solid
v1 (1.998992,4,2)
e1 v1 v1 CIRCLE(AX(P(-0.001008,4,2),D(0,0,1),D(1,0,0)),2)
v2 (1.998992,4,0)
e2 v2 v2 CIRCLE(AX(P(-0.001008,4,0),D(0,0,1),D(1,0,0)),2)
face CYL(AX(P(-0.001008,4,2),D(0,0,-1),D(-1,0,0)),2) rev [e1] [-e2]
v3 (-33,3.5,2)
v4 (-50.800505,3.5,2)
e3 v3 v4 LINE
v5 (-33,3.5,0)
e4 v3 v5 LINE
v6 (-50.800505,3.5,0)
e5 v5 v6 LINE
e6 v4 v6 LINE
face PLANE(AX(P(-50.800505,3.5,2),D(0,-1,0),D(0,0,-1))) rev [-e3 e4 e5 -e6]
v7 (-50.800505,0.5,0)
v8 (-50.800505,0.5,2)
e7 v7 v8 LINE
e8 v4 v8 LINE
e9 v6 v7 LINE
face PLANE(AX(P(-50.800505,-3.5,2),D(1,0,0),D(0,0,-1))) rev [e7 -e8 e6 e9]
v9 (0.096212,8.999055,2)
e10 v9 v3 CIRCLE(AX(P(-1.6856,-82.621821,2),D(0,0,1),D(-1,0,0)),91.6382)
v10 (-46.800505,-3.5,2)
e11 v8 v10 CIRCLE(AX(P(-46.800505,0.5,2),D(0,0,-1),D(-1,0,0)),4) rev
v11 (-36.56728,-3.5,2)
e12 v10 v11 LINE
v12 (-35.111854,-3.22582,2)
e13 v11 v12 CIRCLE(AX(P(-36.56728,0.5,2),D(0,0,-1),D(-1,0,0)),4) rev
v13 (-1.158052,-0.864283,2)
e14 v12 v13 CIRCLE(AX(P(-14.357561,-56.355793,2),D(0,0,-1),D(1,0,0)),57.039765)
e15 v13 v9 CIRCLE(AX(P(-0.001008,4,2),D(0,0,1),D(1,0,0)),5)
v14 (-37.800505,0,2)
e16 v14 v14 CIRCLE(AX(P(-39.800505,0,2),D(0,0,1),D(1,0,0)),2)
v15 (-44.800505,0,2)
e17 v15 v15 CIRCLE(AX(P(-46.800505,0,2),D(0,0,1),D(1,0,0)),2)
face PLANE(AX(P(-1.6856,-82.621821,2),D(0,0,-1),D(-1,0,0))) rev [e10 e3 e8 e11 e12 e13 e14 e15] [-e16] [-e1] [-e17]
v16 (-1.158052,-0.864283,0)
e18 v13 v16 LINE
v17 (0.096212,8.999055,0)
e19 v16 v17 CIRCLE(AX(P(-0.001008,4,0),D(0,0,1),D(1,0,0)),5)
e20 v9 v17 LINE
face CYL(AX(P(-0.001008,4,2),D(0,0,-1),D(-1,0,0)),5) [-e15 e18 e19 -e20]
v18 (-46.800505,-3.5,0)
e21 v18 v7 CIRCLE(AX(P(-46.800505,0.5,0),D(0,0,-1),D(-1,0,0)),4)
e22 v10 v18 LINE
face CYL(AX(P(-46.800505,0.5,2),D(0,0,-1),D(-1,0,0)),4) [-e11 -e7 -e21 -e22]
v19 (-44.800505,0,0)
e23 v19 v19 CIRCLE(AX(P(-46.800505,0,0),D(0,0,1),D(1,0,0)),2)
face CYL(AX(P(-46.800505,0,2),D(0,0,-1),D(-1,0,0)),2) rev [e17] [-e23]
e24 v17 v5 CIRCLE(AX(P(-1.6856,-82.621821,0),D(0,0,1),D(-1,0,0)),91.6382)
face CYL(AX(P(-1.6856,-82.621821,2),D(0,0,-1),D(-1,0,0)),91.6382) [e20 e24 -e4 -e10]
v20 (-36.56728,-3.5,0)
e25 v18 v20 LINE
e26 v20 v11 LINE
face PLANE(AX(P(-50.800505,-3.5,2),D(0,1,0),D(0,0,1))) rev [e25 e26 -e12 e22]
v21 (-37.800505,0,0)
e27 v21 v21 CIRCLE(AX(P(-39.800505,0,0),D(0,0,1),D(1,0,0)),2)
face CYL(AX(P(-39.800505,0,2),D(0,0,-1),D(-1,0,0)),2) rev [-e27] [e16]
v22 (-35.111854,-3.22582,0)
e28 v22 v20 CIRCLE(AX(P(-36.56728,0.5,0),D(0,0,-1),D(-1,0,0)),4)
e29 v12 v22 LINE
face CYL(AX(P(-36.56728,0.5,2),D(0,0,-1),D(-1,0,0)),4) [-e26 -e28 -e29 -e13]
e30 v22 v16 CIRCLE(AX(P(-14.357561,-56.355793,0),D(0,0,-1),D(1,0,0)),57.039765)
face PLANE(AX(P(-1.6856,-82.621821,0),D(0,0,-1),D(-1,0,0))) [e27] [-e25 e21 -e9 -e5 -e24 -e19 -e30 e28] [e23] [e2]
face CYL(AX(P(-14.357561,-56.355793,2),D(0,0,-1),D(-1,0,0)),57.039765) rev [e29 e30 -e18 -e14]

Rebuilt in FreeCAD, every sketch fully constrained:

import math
import FreeCAD as App
import Part
import Sketcher

V = App.Vector
Q = App.Units.Quantity


def edges_at(feature, points):
    """Names of the edges that pass closest to the given points."""
    edges = feature.Shape.Edges
    near = lambda p: min(range(len(edges)), key=lambda i: edges[i].distToShape(Part.Vertex(*p))[0])
    return sorted({f"Edge{near(p) + 1}" for p in points})

doc = App.newDocument("Part")
body = doc.addObject("PartDesign::Body", "Body")

sketch1 = body.newObject("Sketcher::SketchObject", "Sketch")
sketch1.AttachmentSupport = (doc.getObject("XY_Plane"), [""])
sketch1.MapMode = "FlatFace"
sketch1.addGeometry([
    Part.ArcOfCircle(Part.Circle(V(-1.7, -82.6, 0), V(0, 0, 1), 91.6), math.radians(89), math.radians(110)),
    Part.LineSegment(V(-33, 3.5, 0), V(-50.8, 3.5, 0)),
    Part.LineSegment(V(-50.8, 3.5, 0), V(-50.8, -3.5, 0)),
    Part.LineSegment(V(-50.8, -3.5, 0), V(-35.8, -3.5, 0)),
    Part.ArcOfCircle(Part.Circle(V(-14.4, -56.4, 0), V(0, 0, 1), 57), math.radians(77), math.radians(112)),
    Part.ArcOfCircle(Part.Circle(V(0, 4, 0), V(0, 0, 1), 5), math.radians(-103), math.radians(89)),
    Part.Circle(V(-39.8, 0, 0), V(0, 0, 1), 2),
    Part.Circle(V(-46.8, 0, 0), V(0, 0, 1), 2),
    Part.Circle(V(0, 4, 0), V(0, 0, 1), 2),
], False)
sketch1.addConstraint([
    Sketcher.Constraint("Coincident", 0, 2, 1, 1),
    Sketcher.Constraint("Coincident", 1, 2, 2, 1),
    Sketcher.Constraint("Coincident", 2, 2, 3, 1),
    Sketcher.Constraint("Coincident", 3, 2, 4, 2),
    Sketcher.Constraint("Tangent", 4, 1, 5, 1),
    Sketcher.Constraint("Tangent", 5, 2, 0, 1),
    Sketcher.Constraint("Horizontal", 1),
    Sketcher.Constraint("Vertical", 2),
    Sketcher.Constraint("Horizontal", 3),
    Sketcher.Constraint("Coincident", 8, 3, 5, 3),
    Sketcher.Constraint("Equal", 6, 7),
    Sketcher.Constraint("Equal", 7, 8),
    Sketcher.Constraint("PointOnObject", 6, 3, -1),
    Sketcher.Constraint("PointOnObject", 7, 3, -1),
    Sketcher.Constraint("Diameter", 6, Q("4 mm")),
    Sketcher.Constraint("Radius", 5, Q("5 mm")),
    Sketcher.Constraint("DistanceX", 3, 1, 3, 2, Q("15 mm")),
    Sketcher.Constraint("DistanceY", 2, 2, 2, 1, Q("7 mm")),
    Sketcher.Constraint("DistanceY", -1, 1, 5, 3, Q("4 mm")),
    Sketcher.Constraint("DistanceX", 0, 2, -1, 1, Q("33 mm")),
    Sketcher.Constraint("DistanceX", 7, 3, 6, 3, Q("7 mm")),
    Sketcher.Constraint("DistanceX", 1, 2, 7, 3, Q("4 mm")),
    Sketcher.Constraint("DistanceY", -1, 1, 0, 2, Q("3.5 mm")),
    Sketcher.Constraint("Radius", 0, Q("91.6382 mm")),
    Sketcher.Constraint("Radius", 4, Q("57.039765 mm")),
    Sketcher.Constraint("DistanceX", 0, 3, -1, 1, Q("1.6856 mm")),
    Sketcher.Constraint("DistanceX", 1, 2, 1, 1, Q("17.800505 mm")),
])
pad1 = body.newObject("PartDesign::Pad", "Pad")
pad1.Profile = sketch1
pad1.Length = 2
doc.recompute()

fillet = body.newObject("PartDesign::Fillet", "Fillet")
fillet.Base = (pad1, edges_at(pad1, [(-35.801, -3.5, 1), (-50.801, -3.5, 1)]))
fillet.Radius = 4

doc.recompute()
